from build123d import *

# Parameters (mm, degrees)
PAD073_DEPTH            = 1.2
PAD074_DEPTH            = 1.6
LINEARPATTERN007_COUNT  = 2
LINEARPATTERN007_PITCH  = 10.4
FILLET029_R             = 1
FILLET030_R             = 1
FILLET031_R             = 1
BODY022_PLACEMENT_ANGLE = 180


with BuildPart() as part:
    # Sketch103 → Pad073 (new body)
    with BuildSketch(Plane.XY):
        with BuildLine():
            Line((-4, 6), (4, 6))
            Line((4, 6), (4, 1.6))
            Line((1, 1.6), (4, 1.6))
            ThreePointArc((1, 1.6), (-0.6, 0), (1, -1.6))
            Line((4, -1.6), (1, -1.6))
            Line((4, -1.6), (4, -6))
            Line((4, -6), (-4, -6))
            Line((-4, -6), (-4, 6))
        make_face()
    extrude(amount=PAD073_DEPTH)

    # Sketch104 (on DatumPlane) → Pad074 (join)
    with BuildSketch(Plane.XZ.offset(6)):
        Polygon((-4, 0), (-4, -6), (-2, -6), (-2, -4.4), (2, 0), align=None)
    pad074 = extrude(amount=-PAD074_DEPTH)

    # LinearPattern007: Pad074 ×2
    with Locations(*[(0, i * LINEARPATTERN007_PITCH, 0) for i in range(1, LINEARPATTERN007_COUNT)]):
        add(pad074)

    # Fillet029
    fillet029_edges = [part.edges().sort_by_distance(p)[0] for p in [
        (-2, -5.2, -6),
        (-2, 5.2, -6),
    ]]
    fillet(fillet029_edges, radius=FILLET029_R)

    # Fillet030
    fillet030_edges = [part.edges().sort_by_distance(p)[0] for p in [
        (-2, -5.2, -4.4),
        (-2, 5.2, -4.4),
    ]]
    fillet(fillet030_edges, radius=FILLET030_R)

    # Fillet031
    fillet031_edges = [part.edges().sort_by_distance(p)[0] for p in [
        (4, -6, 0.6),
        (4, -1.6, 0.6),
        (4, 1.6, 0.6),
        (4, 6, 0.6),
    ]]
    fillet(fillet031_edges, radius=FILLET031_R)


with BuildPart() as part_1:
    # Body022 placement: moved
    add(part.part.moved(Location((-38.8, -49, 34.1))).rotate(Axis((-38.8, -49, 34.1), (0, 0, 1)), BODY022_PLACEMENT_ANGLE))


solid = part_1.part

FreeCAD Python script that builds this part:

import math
import FreeCAD as App
import Part
import Sketcher
from FreeCAD import Vector


def edges_at(feature, points):
    """Names of the edges that pass closest to the given points."""
    edges = feature.Shape.Edges
    near = lambda p: min(range(len(edges)), key=lambda i: edges[i].distToShape(Part.Vertex(*p))[0])
    return sorted({f"Edge{near(p) + 1}" for p in points})

doc = App.newDocument("Part")
body = doc.addObject("PartDesign::Body", "Body")

sketch1 = body.newObject("Sketcher::SketchObject", "Sketch")
sketch1.AttachmentSupport = (doc.getObject("XY_Plane"), [""])
sketch1.MapMode = "FlatFace"
sketch1.addGeometry([
    Part.LineSegment(Vector(4, 6, 0), Vector(-4, 6, 0)),
    Part.LineSegment(Vector(-4, 6, 0), Vector(-4, -6, 0)),
    Part.LineSegment(Vector(-4, -6, 0), Vector(4, -6, 0)),
    Part.LineSegment(Vector(4, -6, 0), Vector(4, -1.6, 0)),
    Part.LineSegment(Vector(4, -1.6, 0), Vector(1, -1.6, 0)),
    Part.ArcOfCircle(Part.Circle(Vector(1, 0, 0), Vector(0, 0, 1), 1.6), math.radians(90), math.radians(270)),
    Part.LineSegment(Vector(1, 1.6, 0), Vector(4, 1.6, 0)),
    Part.LineSegment(Vector(4, 1.6, 0), Vector(4, 6, 0)),
], False)
sketch1.addConstraint([
    Sketcher.Constraint("Coincident", 0, 2, 1, 1),
    Sketcher.Constraint("Coincident", 1, 2, 2, 1),
    Sketcher.Constraint("Coincident", 2, 2, 3, 1),
    Sketcher.Constraint("Coincident", 3, 2, 4, 1),
    Sketcher.Constraint("Tangent", 4, 2, 5, 2),
    Sketcher.Constraint("Tangent", 5, 1, 6, 1),
    Sketcher.Constraint("Coincident", 6, 2, 7, 1),
    Sketcher.Constraint("Coincident", 7, 2, 0, 1),
    Sketcher.Constraint("Horizontal", 0),
    Sketcher.Constraint("Vertical", 1),
    Sketcher.Constraint("Horizontal", 2),
    Sketcher.Constraint("Vertical", 3),
    Sketcher.Constraint("Horizontal", 4),
    Sketcher.Constraint("Horizontal", 6),
    Sketcher.Constraint("Vertical", 7),
    Sketcher.Constraint("Symmetric", 0, 2, 2, 2, -1, 1),
    Sketcher.Constraint("Symmetric", 3, 2, 6, 2, -1),
    Sketcher.Constraint("Radius", 5, 1.6),
    Sketcher.Constraint("DistanceX", 0, 2, 0, 1, 8.0),
    Sketcher.Constraint("DistanceX", 4, 2, 4, 1, 3.0),
    Sketcher.Constraint("DistanceY", 1, 2, 1, 1, 12.0),
])
pad1 = body.newObject("PartDesign::Pad", "Pad")
pad1.Profile = sketch1
pad1.Length = 1.2

sketch2 = body.newObject("Sketcher::SketchObject", "Sketch001")
sketch2.AttachmentSupport = (doc.getObject("XZ_Plane"), [""])
sketch2.MapMode = "FlatFace"
sketch2.AttachmentOffset = App.Placement(Vector(0, 0, 6), App.Rotation())
sketch2.addGeometry([
    Part.LineSegment(Vector(-4, 0, 0), Vector(-4, -6, 0)),
    Part.LineSegment(Vector(-4, -6, 0), Vector(-2, -6, 0)),
    Part.LineSegment(Vector(-2, -6, 0), Vector(-2, -4.4, 0)),
    Part.LineSegment(Vector(-2, -4.4, 0), Vector(2, 0, 0)),
    Part.LineSegment(Vector(2, 0, 0), Vector(-4, 0, 0)),
], False)
sketch2.addConstraint([
    Sketcher.Constraint("Coincident", 0, 2, 1, 1),
    Sketcher.Constraint("Coincident", 1, 2, 2, 1),
    Sketcher.Constraint("Coincident", 2, 2, 3, 1),
    Sketcher.Constraint("Coincident", 3, 2, 4, 1),
    Sketcher.Constraint("Coincident", 4, 2, 0, 1),
    Sketcher.Constraint("Vertical", 0),
    Sketcher.Constraint("Horizontal", 1),
    Sketcher.Constraint("Vertical", 2),
    Sketcher.Constraint("Horizontal", 4),
    Sketcher.Constraint("PointOnObject", 3, 2, -1),
    Sketcher.Constraint("Equal", 4, 0),
    Sketcher.Constraint("DistanceX", 1, 1, 1, 2, 2.0),
    Sketcher.Constraint("DistanceX", 4, 2, 4, 1, 6.0),
    Sketcher.Constraint("DistanceY", 2, 1, 2, 2, 1.6),
    Sketcher.Constraint("DistanceX", 0, 2, -1, 1, 4.0),
])
pad2 = body.newObject("PartDesign::Pad", "Pad001")
pad2.Profile = sketch2
pad2.Length = 1.6
pad2.Reversed = True
doc.recompute()

linearpattern = body.newObject("PartDesign::LinearPattern", "LinearPattern")
linearpattern.Originals = [pad2]
linearpattern.Direction = (doc.getObject("Y_Axis"), [""])
linearpattern.Mode = "offset"
linearpattern.Offset = 10.4
linearpattern.Occurrences = 2
body.Tip = linearpattern
doc.recompute()

fillet = body.newObject("PartDesign::Fillet", "Fillet")
fillet.Base = (linearpattern, edges_at(linearpattern, [(-2, -5.2, -6), (-2, 5.2, -6)]))
fillet.Radius = 1
doc.recompute()

fillet2 = body.newObject("PartDesign::Fillet", "Fillet001")
fillet2.Base = (fillet, edges_at(fillet, [(-2, -5.2, -4.4), (-2, 5.2, -4.4)]))
fillet2.Radius = 1
doc.recompute()

fillet3 = body.newObject("PartDesign::Fillet", "Fillet002")
fillet3.Base = (fillet2, edges_at(fillet2, [
    (4, -6, 0.6),
    (4, -1.6, 0.6),
    (4, 1.6, 0.6),
    (4, 6, 0.6),
]))
fillet3.Radius = 1
body2 = doc.addObject("PartDesign::Body", "Body001")
doc.recompute()

body.Placement = App.Placement(Vector(-38.8, -49, 34.1), App.Rotation(Vector(0, 0, 1), 180))
boolean = body2.newObject("PartDesign::Boolean", "Boolean")
boolean.Type = "Fuse"
boolean.addObjects([body])

doc.recompute()
